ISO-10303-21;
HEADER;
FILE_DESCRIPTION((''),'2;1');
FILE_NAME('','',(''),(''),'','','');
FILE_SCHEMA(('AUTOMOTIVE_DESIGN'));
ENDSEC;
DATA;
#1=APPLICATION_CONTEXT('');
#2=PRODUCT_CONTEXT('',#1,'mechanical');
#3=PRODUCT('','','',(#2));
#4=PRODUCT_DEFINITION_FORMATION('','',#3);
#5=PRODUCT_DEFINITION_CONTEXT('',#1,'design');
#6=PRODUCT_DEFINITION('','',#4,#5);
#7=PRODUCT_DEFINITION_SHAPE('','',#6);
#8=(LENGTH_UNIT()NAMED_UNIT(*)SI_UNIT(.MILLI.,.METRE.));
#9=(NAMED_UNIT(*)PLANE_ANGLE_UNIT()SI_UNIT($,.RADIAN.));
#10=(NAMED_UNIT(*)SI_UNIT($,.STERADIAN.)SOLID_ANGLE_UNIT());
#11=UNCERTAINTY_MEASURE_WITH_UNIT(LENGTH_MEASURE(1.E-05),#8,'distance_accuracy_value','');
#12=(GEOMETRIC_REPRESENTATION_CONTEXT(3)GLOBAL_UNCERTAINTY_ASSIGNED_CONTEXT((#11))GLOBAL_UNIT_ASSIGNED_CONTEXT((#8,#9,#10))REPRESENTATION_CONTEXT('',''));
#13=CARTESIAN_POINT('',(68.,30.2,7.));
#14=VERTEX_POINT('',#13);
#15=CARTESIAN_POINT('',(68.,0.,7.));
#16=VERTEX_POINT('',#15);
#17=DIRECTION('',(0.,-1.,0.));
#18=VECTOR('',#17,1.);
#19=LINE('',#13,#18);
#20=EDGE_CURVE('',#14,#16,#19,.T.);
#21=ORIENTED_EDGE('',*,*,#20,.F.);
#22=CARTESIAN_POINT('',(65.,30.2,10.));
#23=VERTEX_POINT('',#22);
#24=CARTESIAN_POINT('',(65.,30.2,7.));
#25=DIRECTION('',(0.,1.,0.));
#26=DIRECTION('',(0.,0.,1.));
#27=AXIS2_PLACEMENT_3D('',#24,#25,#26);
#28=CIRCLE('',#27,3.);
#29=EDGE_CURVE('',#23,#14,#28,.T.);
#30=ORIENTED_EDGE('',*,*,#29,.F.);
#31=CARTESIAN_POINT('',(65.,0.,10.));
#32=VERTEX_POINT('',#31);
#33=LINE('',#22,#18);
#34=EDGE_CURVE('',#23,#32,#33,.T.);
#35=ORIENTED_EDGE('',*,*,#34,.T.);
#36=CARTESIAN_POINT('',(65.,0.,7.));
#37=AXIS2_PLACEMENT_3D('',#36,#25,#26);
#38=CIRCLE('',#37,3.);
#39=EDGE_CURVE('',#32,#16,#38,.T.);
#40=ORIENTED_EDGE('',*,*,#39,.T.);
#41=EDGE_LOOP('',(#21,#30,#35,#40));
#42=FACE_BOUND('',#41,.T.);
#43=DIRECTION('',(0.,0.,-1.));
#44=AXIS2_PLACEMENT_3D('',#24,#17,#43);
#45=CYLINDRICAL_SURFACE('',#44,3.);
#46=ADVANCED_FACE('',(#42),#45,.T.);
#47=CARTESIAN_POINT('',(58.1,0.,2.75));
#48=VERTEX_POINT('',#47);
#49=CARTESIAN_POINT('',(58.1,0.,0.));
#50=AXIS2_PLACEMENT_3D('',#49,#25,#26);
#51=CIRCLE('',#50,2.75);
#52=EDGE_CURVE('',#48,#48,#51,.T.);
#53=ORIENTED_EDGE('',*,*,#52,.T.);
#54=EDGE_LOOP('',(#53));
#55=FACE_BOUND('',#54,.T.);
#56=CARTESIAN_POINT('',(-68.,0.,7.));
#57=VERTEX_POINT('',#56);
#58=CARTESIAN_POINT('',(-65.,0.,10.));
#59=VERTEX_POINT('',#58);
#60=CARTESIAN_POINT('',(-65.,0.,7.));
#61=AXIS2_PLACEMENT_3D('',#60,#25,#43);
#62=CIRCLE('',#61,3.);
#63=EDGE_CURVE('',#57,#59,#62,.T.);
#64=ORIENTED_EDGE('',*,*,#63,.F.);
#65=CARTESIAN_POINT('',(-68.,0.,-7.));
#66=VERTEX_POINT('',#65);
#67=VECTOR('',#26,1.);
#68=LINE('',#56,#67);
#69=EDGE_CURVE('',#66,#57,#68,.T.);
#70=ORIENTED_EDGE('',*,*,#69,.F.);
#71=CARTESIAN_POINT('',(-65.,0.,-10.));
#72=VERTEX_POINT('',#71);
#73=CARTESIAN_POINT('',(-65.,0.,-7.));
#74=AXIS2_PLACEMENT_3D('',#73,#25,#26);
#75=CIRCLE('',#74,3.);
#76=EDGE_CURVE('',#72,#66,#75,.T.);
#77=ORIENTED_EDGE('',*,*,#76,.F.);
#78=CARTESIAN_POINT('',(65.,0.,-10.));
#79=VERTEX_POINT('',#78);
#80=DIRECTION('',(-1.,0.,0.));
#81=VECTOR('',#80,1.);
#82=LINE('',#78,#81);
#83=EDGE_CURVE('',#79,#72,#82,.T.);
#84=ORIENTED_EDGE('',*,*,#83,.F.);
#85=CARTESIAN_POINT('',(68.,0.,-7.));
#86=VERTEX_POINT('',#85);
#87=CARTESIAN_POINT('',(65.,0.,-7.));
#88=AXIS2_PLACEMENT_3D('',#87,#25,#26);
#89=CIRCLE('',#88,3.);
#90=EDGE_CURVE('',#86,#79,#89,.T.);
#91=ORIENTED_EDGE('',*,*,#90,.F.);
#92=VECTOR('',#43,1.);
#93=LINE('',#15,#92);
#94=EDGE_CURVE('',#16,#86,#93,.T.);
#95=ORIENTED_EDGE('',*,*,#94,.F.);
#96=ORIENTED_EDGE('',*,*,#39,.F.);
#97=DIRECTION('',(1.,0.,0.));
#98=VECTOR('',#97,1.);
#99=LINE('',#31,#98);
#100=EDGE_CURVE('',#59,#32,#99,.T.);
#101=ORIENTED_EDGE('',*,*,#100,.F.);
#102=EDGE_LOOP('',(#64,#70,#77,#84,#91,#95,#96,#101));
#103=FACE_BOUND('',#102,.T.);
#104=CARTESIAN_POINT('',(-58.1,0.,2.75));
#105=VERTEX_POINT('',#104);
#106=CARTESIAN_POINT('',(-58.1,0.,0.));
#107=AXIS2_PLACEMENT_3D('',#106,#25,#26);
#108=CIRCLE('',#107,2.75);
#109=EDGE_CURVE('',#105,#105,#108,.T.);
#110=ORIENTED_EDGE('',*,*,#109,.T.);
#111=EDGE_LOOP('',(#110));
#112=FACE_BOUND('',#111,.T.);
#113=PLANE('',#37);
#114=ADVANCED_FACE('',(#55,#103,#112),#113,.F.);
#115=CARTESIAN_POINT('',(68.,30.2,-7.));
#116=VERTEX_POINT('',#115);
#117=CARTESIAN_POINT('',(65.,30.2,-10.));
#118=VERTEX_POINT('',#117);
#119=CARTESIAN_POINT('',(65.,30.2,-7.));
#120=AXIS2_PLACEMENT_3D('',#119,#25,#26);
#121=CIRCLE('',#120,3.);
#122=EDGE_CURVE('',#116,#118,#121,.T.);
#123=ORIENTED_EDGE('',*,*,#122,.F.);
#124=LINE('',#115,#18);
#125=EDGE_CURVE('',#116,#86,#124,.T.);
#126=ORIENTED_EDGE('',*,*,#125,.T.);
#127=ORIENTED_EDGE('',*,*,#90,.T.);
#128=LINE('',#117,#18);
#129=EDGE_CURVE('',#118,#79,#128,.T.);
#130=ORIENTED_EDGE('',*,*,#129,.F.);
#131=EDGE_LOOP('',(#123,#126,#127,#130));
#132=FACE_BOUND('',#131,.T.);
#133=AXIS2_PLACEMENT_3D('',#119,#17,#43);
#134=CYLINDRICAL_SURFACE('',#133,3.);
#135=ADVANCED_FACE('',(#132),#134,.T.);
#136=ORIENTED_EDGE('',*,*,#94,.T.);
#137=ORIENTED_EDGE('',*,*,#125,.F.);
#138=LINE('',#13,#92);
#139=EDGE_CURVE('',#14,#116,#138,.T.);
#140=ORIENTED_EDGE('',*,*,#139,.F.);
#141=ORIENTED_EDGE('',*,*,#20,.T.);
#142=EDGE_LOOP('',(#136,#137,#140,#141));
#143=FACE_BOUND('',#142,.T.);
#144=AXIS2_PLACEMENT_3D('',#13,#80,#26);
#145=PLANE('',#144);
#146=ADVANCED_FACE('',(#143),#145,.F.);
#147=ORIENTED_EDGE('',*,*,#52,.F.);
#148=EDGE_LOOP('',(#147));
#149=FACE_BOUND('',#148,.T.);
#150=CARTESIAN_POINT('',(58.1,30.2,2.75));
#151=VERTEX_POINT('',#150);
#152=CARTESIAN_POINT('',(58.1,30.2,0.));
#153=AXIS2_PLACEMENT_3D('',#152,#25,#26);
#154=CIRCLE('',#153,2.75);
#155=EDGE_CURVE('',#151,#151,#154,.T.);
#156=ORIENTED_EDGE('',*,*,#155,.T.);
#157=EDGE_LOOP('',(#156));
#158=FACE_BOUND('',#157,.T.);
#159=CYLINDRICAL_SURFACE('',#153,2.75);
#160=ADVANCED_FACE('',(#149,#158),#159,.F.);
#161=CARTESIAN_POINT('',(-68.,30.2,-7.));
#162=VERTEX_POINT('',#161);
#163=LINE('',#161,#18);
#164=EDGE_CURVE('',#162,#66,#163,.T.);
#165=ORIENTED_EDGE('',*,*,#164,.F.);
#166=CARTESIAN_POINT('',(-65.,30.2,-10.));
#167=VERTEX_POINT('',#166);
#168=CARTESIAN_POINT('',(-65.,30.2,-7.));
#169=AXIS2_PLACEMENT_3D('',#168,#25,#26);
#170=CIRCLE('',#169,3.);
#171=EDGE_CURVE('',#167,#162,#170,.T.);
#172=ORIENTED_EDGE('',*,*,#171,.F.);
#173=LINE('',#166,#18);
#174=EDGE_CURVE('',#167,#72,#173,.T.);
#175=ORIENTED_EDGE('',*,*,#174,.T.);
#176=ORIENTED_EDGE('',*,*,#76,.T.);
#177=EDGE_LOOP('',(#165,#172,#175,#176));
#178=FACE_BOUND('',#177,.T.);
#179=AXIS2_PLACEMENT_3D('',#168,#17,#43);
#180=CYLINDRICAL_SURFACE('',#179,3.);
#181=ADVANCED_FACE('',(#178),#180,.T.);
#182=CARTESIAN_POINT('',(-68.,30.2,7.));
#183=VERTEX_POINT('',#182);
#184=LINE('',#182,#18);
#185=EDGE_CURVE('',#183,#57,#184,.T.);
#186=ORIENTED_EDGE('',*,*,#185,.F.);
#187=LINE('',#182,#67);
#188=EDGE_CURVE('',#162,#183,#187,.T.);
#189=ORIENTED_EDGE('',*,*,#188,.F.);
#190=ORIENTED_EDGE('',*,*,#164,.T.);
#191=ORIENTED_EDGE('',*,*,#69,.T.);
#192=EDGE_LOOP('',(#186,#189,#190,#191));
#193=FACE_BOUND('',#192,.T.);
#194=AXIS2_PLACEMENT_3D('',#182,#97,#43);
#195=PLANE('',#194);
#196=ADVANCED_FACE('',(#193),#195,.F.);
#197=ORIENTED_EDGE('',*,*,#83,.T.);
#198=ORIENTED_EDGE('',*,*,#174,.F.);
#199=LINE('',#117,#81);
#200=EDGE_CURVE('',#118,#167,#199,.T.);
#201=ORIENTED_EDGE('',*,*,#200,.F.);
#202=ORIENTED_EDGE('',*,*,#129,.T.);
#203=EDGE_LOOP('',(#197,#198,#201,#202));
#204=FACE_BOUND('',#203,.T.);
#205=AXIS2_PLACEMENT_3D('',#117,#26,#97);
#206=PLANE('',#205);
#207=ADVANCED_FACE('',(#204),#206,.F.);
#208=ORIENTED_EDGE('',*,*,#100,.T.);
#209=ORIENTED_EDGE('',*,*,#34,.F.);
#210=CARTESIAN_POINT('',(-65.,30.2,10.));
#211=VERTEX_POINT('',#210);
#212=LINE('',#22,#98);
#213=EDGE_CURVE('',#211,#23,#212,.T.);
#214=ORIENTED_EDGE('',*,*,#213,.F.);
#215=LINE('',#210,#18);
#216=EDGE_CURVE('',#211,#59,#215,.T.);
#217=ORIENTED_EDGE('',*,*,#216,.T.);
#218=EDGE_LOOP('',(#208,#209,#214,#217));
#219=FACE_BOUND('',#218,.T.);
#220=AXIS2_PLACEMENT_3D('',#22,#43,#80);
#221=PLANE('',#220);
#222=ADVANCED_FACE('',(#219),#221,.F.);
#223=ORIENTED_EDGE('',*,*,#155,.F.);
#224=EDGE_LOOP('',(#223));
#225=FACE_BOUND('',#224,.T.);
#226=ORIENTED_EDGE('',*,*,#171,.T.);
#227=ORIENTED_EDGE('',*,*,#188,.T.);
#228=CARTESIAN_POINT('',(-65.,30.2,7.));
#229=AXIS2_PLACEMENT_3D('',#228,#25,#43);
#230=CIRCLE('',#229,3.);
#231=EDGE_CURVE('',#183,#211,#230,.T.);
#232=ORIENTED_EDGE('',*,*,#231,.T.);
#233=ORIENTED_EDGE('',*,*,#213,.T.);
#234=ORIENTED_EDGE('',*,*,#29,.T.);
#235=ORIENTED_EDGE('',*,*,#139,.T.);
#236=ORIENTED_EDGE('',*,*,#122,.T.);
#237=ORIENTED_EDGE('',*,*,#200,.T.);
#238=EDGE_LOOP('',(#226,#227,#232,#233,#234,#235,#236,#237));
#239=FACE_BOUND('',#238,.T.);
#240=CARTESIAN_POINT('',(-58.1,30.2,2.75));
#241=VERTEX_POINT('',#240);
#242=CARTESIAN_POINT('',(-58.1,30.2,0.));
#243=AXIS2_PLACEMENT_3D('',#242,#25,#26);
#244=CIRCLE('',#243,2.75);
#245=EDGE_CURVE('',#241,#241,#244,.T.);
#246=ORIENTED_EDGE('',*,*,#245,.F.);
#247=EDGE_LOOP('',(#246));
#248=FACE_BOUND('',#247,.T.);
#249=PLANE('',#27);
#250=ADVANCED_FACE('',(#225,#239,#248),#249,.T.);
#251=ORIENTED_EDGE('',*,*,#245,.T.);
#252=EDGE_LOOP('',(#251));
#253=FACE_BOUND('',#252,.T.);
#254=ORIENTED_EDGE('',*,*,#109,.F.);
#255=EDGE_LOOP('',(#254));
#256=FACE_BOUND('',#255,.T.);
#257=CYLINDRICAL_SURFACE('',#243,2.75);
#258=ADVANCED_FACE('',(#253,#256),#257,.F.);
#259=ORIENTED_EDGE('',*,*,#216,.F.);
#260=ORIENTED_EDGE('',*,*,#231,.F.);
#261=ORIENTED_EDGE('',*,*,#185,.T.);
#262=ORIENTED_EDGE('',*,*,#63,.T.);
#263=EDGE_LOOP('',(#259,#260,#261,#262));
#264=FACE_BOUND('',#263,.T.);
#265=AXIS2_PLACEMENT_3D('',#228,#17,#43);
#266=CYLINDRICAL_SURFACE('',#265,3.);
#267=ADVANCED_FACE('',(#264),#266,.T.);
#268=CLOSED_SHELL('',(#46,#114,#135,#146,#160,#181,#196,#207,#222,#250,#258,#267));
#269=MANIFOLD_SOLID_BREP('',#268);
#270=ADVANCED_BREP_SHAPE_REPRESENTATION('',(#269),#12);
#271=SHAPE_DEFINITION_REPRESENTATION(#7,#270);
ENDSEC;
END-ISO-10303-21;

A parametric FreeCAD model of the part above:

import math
import FreeCAD as App
import Part
import Sketcher
from FreeCAD import Vector
Q = App.Units.Quantity

doc = App.newDocument("Part")
params = doc.addObject("Spreadsheet::Sheet", "Params")
for row, (alias, value) in enumerate([
    ("sketch1_radius", "3 mm"),
    ("sketch1_width", "130 mm"),
    ("sketch1_height", "14 mm"),
    ("pad1_length", "30.2 mm"),
    ("sketch2_diameter", "5.5 mm"),
    ("hole_diameter", "5.5 mm"),
    ("hole_depth", "30.2 mm"),
], start=1):
    params.set(f"A{row}", alias)
    params.set(f"B{row}", "=" + value)
    params.setAlias(f"B{row}", alias)

body = doc.addObject("PartDesign::Body", "Body")

# Sketch on XZ plane
sketch1 = doc.addObject("Sketcher::SketchObject", "Sketch")
body.addObject(sketch1)
sketch1.AttachmentSupport = (doc.XZ_Plane, [""])
sketch1.MapMode = "FlatFace"
sketch1.addGeometry([
    Part.LineSegment(Vector(-65, 10, 0), Vector(65, 10, 0)),  # 0
    Part.ArcOfCircle(Part.Circle(Vector(65, 7, 0), Vector(0, 0, 1), 3), math.radians(0), math.radians(90)),  # 1
    Part.LineSegment(Vector(68, 7, 0), Vector(68, -7, 0)),  # 2
    Part.ArcOfCircle(Part.Circle(Vector(65, -7, 0), Vector(0, 0, 1), 3), math.radians(-90), math.radians(0)),  # 3
    Part.LineSegment(Vector(65, -10, 0), Vector(-65, -10, 0)),  # 4
    Part.ArcOfCircle(Part.Circle(Vector(-65, -7, 0), Vector(0, 0, 1), 3), math.radians(180), math.radians(270)),  # 5
    Part.LineSegment(Vector(-68, -7, 0), Vector(-68, 7, 0)),  # 6
    Part.ArcOfCircle(Part.Circle(Vector(-65, 7, 0), Vector(0, 0, 1), 3), math.radians(90), math.radians(180)),  # 7
], False)
sketch1.addConstraint([
    Sketcher.Constraint("Tangent", 0, 2, 1, 2),
    Sketcher.Constraint("Tangent", 1, 1, 2, 1),
    Sketcher.Constraint("Tangent", 2, 2, 3, 2),
    Sketcher.Constraint("Tangent", 3, 1, 4, 1),
    Sketcher.Constraint("Tangent", 4, 2, 5, 2),
    Sketcher.Constraint("Tangent", 5, 1, 6, 1),
    Sketcher.Constraint("Tangent", 6, 2, 7, 2),
    Sketcher.Constraint("Tangent", 7, 1, 0, 1),
    Sketcher.Constraint("Horizontal", 0),
    Sketcher.Constraint("Vertical", 2),
    Sketcher.Constraint("Horizontal", 4),
    Sketcher.Constraint("Vertical", 6),
    Sketcher.Constraint("Equal", 1, 3),
    Sketcher.Constraint("Equal", 3, 5),
    Sketcher.Constraint("Equal", 5, 7),
    Sketcher.Constraint("Symmetric", 1, 3, 5, 3, -1, 1),
    Sketcher.Constraint("Radius", 1, Q("3 mm")),
    Sketcher.Constraint("DistanceX", 0, 1, 0, 2, Q("130 mm")),
    Sketcher.Constraint("DistanceY", 2, 2, 2, 1, Q("14 mm")),
])
sketch1.setExpression("Constraints[16]", "Params.sketch1_radius")
sketch1.setExpression("Constraints[17]", "Params.sketch1_width")
sketch1.setExpression("Constraints[18]", "Params.sketch1_height")
pad1 = doc.addObject("PartDesign::Pad", "Pad")
body.addObject(pad1)
pad1.Profile = sketch1
pad1.setExpression("Length", "Params.pad1_length")
pad1.Reversed = True

# Sketch on XZ plane
sketch2 = doc.addObject("Sketcher::SketchObject", "Sketch001")
body.addObject(sketch2)
sketch2.AttachmentSupport = (doc.XZ_Plane, [""])
sketch2.MapMode = "FlatFace"
sketch2.AttachmentOffset = App.Placement(Vector(0, 0, -30.2), App.Rotation())
sketch2.addGeometry([
    Part.Circle(Vector(-58.1, 0, 0), Vector(0, 0, 1), 2.8),
    Part.Circle(Vector(58.1, 0, 0), Vector(0, 0, 1), 2.8),
], False)
sketch2.addConstraint([
    Sketcher.Constraint("Equal", 0, 1),
    Sketcher.Constraint("Symmetric", 0, 3, 1, 3, -1, 1),
    Sketcher.Constraint("PointOnObject", 0, 3, -1),
    Sketcher.Constraint("Diameter", 0, Q("5.5 mm")),
    Sketcher.Constraint("DistanceX", 0, 3, -1, 1, Q("58.1 mm")),
])
sketch2.setExpression("Constraints[3]", "Params.sketch2_diameter")
doc.recompute()
hole = doc.addObject("PartDesign::Hole", "Hole")
body.addObject(hole)
hole.Profile = sketch2
hole.ThreadType = "None"
hole.setExpression("Diameter", "Params.hole_diameter")
hole.DepthType = "Dimension"
hole.setExpression("Depth", "Params.hole_depth")
hole.DrillPoint = "Flat"
hole.Reversed = True

doc.recompute()
